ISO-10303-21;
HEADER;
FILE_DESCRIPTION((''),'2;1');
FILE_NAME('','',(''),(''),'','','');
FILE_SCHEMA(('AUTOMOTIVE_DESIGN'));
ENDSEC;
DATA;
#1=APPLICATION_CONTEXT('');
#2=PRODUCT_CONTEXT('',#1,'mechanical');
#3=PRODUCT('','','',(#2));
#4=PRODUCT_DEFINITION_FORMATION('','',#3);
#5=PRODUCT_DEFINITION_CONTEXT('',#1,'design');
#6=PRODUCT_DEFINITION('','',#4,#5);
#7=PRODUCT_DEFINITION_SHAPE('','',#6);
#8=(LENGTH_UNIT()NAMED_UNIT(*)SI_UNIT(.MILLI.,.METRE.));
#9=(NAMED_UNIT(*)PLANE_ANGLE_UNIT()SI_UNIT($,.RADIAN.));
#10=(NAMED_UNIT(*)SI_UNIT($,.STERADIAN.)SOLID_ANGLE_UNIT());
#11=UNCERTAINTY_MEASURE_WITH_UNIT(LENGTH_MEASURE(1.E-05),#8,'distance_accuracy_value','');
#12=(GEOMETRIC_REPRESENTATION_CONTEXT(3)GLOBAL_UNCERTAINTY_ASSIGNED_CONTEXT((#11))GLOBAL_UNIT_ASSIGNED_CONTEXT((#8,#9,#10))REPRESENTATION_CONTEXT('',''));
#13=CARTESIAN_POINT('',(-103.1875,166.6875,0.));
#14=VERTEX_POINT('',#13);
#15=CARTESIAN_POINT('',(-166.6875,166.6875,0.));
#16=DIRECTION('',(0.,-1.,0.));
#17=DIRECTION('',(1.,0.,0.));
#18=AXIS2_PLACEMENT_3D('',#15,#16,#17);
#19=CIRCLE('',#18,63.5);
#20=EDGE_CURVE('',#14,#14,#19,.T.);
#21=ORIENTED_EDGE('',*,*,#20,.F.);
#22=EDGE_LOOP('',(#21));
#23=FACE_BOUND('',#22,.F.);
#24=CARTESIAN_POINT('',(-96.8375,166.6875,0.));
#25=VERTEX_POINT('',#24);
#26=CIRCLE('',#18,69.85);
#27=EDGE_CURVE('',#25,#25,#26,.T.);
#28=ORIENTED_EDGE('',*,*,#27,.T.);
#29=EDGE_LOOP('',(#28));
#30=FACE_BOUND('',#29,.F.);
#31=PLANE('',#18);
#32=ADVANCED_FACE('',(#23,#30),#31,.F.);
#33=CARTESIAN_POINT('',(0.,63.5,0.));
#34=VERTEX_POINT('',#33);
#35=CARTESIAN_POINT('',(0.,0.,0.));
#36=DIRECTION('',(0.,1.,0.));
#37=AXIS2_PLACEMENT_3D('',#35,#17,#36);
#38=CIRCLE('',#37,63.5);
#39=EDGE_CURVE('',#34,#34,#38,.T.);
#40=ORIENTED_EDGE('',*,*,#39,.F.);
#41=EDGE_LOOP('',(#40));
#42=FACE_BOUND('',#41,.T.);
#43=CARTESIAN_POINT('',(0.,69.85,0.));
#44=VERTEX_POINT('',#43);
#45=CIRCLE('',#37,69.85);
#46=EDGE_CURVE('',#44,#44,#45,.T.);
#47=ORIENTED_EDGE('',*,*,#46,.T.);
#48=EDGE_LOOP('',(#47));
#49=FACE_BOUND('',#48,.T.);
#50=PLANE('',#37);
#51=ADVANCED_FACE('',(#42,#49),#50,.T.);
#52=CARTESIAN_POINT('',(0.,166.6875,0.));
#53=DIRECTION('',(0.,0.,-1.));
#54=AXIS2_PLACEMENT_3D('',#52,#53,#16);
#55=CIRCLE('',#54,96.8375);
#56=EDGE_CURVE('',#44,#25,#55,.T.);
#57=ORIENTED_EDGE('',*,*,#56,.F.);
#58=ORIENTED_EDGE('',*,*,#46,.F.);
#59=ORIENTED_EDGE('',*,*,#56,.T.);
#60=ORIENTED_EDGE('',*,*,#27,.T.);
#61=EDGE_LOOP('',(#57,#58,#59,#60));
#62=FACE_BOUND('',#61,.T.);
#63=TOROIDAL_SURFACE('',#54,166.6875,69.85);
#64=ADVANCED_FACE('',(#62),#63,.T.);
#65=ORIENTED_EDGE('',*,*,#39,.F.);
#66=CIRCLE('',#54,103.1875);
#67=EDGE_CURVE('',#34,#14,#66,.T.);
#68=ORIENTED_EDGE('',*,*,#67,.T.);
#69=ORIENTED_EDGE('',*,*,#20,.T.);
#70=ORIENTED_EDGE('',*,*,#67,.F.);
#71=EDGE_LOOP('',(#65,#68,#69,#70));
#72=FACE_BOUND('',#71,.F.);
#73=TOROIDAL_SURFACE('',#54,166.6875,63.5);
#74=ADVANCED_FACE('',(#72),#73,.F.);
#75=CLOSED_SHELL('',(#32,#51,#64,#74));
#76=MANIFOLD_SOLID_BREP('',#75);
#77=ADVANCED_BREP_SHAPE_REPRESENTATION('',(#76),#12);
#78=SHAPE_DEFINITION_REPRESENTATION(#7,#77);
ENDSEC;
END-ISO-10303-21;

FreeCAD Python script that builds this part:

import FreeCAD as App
import Part
import Sketcher
Q = App.Units.Quantity

doc = App.newDocument("Part")
body = doc.addObject("PartDesign::Body", "Body")

# Sketch on YZ plane
sketch1 = body.newObject("Sketcher::SketchObject", "Sketch")
sketch1.AttachmentSupport = (doc.getObject("YZ_Plane"), [""])
sketch1.MapMode = "FlatFace"
sketch1.addGeometry([
    Part.Circle(App.Vector(0, 0, 0), App.Vector(0, 0, 1), 70),
    Part.Circle(App.Vector(0, 0, 0), App.Vector(0, 0, 1), 64),
], False)
sketch1.addGeometry(Part.LineSegment(App.Vector(167, 0, 0), App.Vector(167, -10, 0)), True)  # axis
sketch1.addConstraint([
    Sketcher.Constraint("Vertical", 2),
    Sketcher.Constraint("Coincident", 0, 3, -1, 1),
    Sketcher.Constraint("Coincident", 1, 3, -1, 1),
    Sketcher.Constraint("PointOnObject", 2, 1, -1),
    Sketcher.Constraint("Diameter", 1, Q("5 in")),
    Sketcher.Constraint("Diameter", 0, Q("5.5 in")),
    Sketcher.Constraint("DistanceX", -1, 1, 2, 1, Q("6.5625 in")),
    Sketcher.Constraint("DistanceY", 2, 2, 2, 1, 10.0),
])
revolution = body.newObject("PartDesign::Revolution", "Revolution")
revolution.Profile = sketch1
revolution.ReferenceAxis = (sketch1, ["Axis0"])
revolution.Angle = 90

doc.recompute()
